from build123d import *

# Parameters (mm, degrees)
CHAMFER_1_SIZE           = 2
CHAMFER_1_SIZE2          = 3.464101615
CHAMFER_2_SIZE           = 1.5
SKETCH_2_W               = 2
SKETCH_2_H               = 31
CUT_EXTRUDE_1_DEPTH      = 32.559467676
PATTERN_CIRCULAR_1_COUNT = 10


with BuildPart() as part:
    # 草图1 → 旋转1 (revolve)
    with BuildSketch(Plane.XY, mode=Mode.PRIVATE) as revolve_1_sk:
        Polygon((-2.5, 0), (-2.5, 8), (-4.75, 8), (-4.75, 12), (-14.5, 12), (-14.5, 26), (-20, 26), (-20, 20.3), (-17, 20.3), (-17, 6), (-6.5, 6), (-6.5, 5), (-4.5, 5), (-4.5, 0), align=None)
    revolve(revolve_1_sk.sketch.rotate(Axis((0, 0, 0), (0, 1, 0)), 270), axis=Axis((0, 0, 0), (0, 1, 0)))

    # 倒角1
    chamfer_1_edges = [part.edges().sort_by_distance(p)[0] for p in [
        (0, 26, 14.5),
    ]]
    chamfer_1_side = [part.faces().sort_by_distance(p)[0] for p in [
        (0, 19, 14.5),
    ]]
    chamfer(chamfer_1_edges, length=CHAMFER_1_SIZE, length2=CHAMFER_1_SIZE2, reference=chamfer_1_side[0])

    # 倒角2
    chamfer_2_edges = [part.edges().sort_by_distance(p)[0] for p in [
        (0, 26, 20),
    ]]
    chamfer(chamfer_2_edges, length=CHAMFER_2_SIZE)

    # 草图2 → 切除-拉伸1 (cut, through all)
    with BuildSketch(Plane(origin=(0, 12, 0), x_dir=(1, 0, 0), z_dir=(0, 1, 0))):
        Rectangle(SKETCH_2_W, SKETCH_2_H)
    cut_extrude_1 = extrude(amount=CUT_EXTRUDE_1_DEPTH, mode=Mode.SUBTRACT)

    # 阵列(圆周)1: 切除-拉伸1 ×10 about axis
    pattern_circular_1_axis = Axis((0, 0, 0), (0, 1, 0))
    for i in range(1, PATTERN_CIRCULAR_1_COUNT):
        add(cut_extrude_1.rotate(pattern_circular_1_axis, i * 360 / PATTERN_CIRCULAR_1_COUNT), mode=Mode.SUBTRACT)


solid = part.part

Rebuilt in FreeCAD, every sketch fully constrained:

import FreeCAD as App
import Part
import Sketcher
Q = App.Units.Quantity


def edges_at(feature, points):
    """Names of the edges that pass closest to the given points."""
    edges = feature.Shape.Edges
    near = lambda p: min(range(len(edges)), key=lambda i: edges[i].distToShape(Part.Vertex(*p))[0])
    return sorted({f"Edge{near(p) + 1}" for p in points})

doc = App.newDocument("Part")
body = doc.addObject("PartDesign::Body", "Body")

sketch1 = body.newObject("Sketcher::SketchObject", "Sketch")
sketch1.AttachmentSupport = (doc.getObject("XY_Plane"), [""])
sketch1.MapMode = "FlatFace"
sketch1.addGeometry([
    Part.LineSegment(App.Vector(-2.5, 0, 0), App.Vector(-2.5, 8, 0)),
    Part.LineSegment(App.Vector(-2.5, 8, 0), App.Vector(-4.75, 8, 0)),
    Part.LineSegment(App.Vector(-4.75, 8, 0), App.Vector(-4.75, 12, 0)),
    Part.LineSegment(App.Vector(-4.75, 12, 0), App.Vector(-14.5, 12, 0)),
    Part.LineSegment(App.Vector(-14.5, 12, 0), App.Vector(-14.5, 26, 0)),
    Part.LineSegment(App.Vector(-14.5, 26, 0), App.Vector(-20, 26, 0)),
    Part.LineSegment(App.Vector(-20, 26, 0), App.Vector(-20, 20.3, 0)),
    Part.LineSegment(App.Vector(-20, 20.3, 0), App.Vector(-17, 20.3, 0)),
    Part.LineSegment(App.Vector(-17, 20.3, 0), App.Vector(-17, 6, 0)),
    Part.LineSegment(App.Vector(-17, 6, 0), App.Vector(-6.5, 6, 0)),
    Part.LineSegment(App.Vector(-6.5, 6, 0), App.Vector(-6.5, 5, 0)),
    Part.LineSegment(App.Vector(-6.5, 5, 0), App.Vector(-4.5, 5, 0)),
    Part.LineSegment(App.Vector(-4.5, 5, 0), App.Vector(-4.5, 0, 0)),
    Part.LineSegment(App.Vector(-4.5, 0, 0), App.Vector(-2.5, 0, 0)),
], False)
sketch1.addConstraint([
    Sketcher.Constraint("Coincident", 0, 2, 1, 1),
    Sketcher.Constraint("Coincident", 1, 2, 2, 1),
    Sketcher.Constraint("Coincident", 2, 2, 3, 1),
    Sketcher.Constraint("Coincident", 3, 2, 4, 1),
    Sketcher.Constraint("Coincident", 4, 2, 5, 1),
    Sketcher.Constraint("Coincident", 5, 2, 6, 1),
    Sketcher.Constraint("Coincident", 6, 2, 7, 1),
    Sketcher.Constraint("Coincident", 7, 2, 8, 1),
    Sketcher.Constraint("Coincident", 8, 2, 9, 1),
    Sketcher.Constraint("Coincident", 9, 2, 10, 1),
    Sketcher.Constraint("Coincident", 10, 2, 11, 1),
    Sketcher.Constraint("Coincident", 11, 2, 12, 1),
    Sketcher.Constraint("Coincident", 12, 2, 13, 1),
    Sketcher.Constraint("Coincident", 13, 2, 0, 1),
    Sketcher.Constraint("Vertical", 0),
    Sketcher.Constraint("Horizontal", 1),
    Sketcher.Constraint("Vertical", 2),
    Sketcher.Constraint("Horizontal", 3),
    Sketcher.Constraint("Vertical", 4),
    Sketcher.Constraint("Horizontal", 5),
    Sketcher.Constraint("Vertical", 6),
    Sketcher.Constraint("Horizontal", 7),
    Sketcher.Constraint("Vertical", 8),
    Sketcher.Constraint("Horizontal", 9),
    Sketcher.Constraint("Vertical", 10),
    Sketcher.Constraint("Horizontal", 11),
    Sketcher.Constraint("Vertical", 12),
    Sketcher.Constraint("Horizontal", 13),
    Sketcher.Constraint("PointOnObject", 12, 2, -1),
    Sketcher.Constraint("Equal", 11, 13),
    Sketcher.Constraint("DistanceX", 7, 1, 7, 2, Q("3 mm")),
    Sketcher.Constraint("DistanceX", 11, 1, 11, 2, Q("2 mm")),
    Sketcher.Constraint("DistanceY", 0, 1, 0, 2, Q("8 mm")),
    Sketcher.Constraint("DistanceY", 2, 1, 2, 2, Q("4 mm")),
    Sketcher.Constraint("DistanceY", 4, 1, 4, 2, Q("14 mm")),
    Sketcher.Constraint("DistanceY", 10, 2, 10, 1, Q("1 mm")),
    Sketcher.Constraint("DistanceY", 12, 2, 12, 1, Q("5 mm")),
    Sketcher.Constraint("DistanceX", 5, 2, 5, 1, Q("5.5 mm")),
    Sketcher.Constraint("DistanceX", 9, 1, 9, 2, Q("10.5 mm")),
    Sketcher.Constraint("DistanceY", 6, 2, 6, 1, Q("5.7 mm")),
    Sketcher.Constraint("DistanceX", 5, 2, -1, 1, Q("20 mm")),
    Sketcher.Constraint("DistanceX", 1, 2, 1, 1, Q("2.25 mm")),
])
revolution = body.newObject("PartDesign::Revolution", "Revolution")
revolution.Profile = sketch1
revolution.ReferenceAxis = (sketch1, ["V_Axis"])
revolution.Angle = 360
doc.recompute()

chamfer = body.newObject("PartDesign::Chamfer", "Chamfer")
chamfer.Base = (revolution, edges_at(revolution, [(0, 26, 14.5)]))
chamfer.ChamferType = "Two distances"
chamfer.Size = 2
chamfer.Size2 = 3.464102
doc.recompute()

chamfer2 = body.newObject("PartDesign::Chamfer", "Chamfer001")
chamfer2.Base = (chamfer, edges_at(chamfer, [(0, 26, 20)]))
chamfer2.Size = 1.5

sketch2 = body.newObject("Sketcher::SketchObject", "Sketch001")
sketch2.AttachmentSupport = (doc.getObject("XZ_Plane"), [""])
sketch2.MapMode = "FlatFace"
sketch2.AttachmentOffset = App.Placement(App.Vector(0, 0, -12), App.Rotation())
sketch2.addGeometry([
    Part.LineSegment(App.Vector(-1, -15.5, 0), App.Vector(-1, 15.5, 0)),
    Part.LineSegment(App.Vector(-1, 15.5, 0), App.Vector(1, 15.5, 0)),
    Part.LineSegment(App.Vector(1, 15.5, 0), App.Vector(1, -15.5, 0)),
    Part.LineSegment(App.Vector(1, -15.5, 0), App.Vector(-1, -15.5, 0)),
], False)
sketch2.addConstraint([
    Sketcher.Constraint("Coincident", 0, 2, 1, 1),
    Sketcher.Constraint("Coincident", 1, 2, 2, 1),
    Sketcher.Constraint("Coincident", 2, 2, 3, 1),
    Sketcher.Constraint("Coincident", 3, 2, 0, 1),
    Sketcher.Constraint("Vertical", 0),
    Sketcher.Constraint("Horizontal", 1),
    Sketcher.Constraint("Vertical", 2),
    Sketcher.Constraint("Horizontal", 3),
    Sketcher.Constraint("Symmetric", 0, 2, 2, 2, -1, 1),
    Sketcher.Constraint("DistanceX", 1, 1, 1, 2, Q("2 mm")),
    Sketcher.Constraint("DistanceY", 0, 1, 0, 2, Q("31 mm")),
])
pocket1 = body.newObject("PartDesign::Pocket", "Pocket")
pocket1.Profile = sketch2
pocket1.Type = "ThroughAll"
doc.recompute()

polarpattern = body.newObject("PartDesign::PolarPattern", "PolarPattern")
polarpattern.Originals = [pocket1]
polarpattern.Axis = (doc.getObject("Y_Axis"), [""])
polarpattern.Angle = 360
polarpattern.Occurrences = 10
body.Tip = polarpattern

doc.recompute()
